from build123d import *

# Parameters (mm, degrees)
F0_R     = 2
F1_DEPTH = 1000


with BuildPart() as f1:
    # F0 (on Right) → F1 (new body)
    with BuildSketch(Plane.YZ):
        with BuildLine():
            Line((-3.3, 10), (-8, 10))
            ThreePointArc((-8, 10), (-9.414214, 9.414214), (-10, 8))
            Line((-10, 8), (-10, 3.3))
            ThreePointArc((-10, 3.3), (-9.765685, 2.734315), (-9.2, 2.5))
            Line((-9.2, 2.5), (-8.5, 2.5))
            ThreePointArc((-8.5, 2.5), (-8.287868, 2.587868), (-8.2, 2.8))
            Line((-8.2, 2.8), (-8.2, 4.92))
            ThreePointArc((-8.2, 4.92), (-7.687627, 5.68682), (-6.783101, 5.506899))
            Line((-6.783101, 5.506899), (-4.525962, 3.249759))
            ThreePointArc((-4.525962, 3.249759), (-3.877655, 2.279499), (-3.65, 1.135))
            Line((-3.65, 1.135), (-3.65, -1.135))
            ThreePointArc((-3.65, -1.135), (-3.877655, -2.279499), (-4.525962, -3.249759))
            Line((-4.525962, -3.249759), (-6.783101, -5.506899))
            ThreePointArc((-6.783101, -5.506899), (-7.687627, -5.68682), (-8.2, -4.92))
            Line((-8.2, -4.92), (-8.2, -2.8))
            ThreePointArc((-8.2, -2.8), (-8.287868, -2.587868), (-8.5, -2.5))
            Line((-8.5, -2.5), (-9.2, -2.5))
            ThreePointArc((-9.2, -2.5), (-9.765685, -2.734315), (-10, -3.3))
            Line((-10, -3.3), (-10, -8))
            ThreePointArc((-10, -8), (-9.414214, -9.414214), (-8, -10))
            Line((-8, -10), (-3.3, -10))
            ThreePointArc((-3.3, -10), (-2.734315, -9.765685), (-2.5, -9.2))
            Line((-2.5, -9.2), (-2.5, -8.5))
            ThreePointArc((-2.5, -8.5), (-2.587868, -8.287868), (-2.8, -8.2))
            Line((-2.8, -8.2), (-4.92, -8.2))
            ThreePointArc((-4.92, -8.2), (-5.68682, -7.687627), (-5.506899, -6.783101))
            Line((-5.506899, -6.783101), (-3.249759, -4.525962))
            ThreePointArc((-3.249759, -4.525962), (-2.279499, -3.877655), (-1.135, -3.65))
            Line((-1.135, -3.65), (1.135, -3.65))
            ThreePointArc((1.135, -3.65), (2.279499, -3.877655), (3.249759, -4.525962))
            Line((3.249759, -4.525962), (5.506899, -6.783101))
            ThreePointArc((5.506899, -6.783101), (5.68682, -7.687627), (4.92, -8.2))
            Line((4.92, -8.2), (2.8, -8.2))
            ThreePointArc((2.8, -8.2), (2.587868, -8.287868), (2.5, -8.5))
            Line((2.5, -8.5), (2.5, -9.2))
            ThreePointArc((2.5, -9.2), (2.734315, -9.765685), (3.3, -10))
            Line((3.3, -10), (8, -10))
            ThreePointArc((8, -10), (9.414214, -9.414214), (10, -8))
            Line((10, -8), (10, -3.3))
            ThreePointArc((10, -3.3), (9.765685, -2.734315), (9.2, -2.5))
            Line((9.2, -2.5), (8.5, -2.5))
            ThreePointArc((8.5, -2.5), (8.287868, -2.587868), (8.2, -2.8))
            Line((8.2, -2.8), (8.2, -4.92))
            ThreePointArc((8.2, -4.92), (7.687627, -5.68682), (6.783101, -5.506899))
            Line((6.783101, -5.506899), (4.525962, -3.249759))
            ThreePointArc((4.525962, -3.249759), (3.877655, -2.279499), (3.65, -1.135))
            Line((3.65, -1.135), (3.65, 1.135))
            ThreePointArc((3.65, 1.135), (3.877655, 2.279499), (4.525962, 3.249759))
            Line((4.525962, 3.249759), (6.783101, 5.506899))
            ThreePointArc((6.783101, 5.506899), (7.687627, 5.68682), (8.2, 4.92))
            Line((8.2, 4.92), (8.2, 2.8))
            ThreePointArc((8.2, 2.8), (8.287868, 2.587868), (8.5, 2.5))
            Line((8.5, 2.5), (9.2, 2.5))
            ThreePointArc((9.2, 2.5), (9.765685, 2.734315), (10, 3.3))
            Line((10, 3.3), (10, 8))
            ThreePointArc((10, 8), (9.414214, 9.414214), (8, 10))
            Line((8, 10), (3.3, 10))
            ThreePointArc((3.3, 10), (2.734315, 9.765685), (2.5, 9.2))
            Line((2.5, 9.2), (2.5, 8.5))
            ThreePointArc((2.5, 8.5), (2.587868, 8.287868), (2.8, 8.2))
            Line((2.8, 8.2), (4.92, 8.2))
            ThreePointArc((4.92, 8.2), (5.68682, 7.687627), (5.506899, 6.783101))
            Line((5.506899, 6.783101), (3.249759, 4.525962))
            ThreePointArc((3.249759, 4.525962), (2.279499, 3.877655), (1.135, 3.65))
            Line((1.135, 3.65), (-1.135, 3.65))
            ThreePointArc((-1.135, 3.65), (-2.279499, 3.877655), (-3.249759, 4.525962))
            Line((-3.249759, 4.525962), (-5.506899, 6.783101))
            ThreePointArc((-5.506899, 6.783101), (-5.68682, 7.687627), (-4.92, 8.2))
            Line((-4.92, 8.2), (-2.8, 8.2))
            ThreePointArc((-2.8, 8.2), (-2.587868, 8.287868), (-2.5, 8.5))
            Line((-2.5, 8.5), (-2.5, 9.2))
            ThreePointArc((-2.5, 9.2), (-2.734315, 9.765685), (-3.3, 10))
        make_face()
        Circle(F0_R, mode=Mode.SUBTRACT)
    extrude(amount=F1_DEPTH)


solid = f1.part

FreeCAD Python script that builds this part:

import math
import FreeCAD as App
import Part
import Sketcher
from FreeCAD import Vector
Q = App.Units.Quantity

doc = App.newDocument("Part")
body = doc.addObject("PartDesign::Body", "Body")

# Sketch on YZ plane
sketch1 = body.newObject("Sketcher::SketchObject", "Sketch")
sketch1.AttachmentSupport = (doc.getObject("YZ_Plane"), [""])
sketch1.MapMode = "FlatFace"
sketch1.addGeometry([
    Part.LineSegment(Vector(-3.3, 10, 0), Vector(-8, 10, 0)),  # 0
    Part.ArcOfCircle(Part.Circle(Vector(-8.000001, 8.000001, 0), Vector(0, 0, 1), 1.999999), math.radians(89.999957), math.radians(180.000043)),  # 1
    Part.LineSegment(Vector(-10, 8, 0), Vector(-10, 3.3, 0)),  # 2
    Part.ArcOfCircle(Part.Circle(Vector(-9.199999, 3.300001, 0), Vector(0, 0, 1), 0.800001), math.radians(-179.999896), math.radians(-90.000104)),  # 3
    Part.LineSegment(Vector(-9.2, 2.5, 0), Vector(-8.5, 2.5, 0)),  # 4
    Part.ArcOfCircle(Part.Circle(Vector(-8.5, 2.8, 0), Vector(0, 0, 1), 0.3), math.radians(-89.999978), math.radians(-0.000022)),  # 5
    Part.LineSegment(Vector(-8.2, 2.8, 0), Vector(-8.2, 4.92, 0)),  # 6
    Part.ArcOfCircle(Part.Circle(Vector(-7.37, 4.92, 0), Vector(0, 0, 1), 0.83), math.radians(45.000046), math.radians(179.999969)),  # 7
    Part.LineSegment(Vector(-6.783101, 5.506899, 0), Vector(-4.525962, 3.249759, 0)),  # 8
    Part.ArcOfCircle(Part.Circle(Vector(-6.640721, 1.135, 0), Vector(0, 0, 1), 2.990721), math.radians(0.000003), math.radians(45.000003)),  # 9
    Part.LineSegment(Vector(-3.65, 1.135, 0), Vector(-3.65, -1.135, 0)),  # 10
    Part.ArcOfCircle(Part.Circle(Vector(-6.640721, -1.135, 0), Vector(0, 0, 1), 2.990721), math.radians(-45.000003), math.radians(-0.000003)),  # 11
    Part.LineSegment(Vector(-4.525962, -3.249759, 0), Vector(-6.783101, -5.506899, 0)),  # 12
    Part.ArcOfCircle(Part.Circle(Vector(-7.37, -4.92, 0), Vector(0, 0, 1), 0.83), math.radians(-179.999969), math.radians(-45.000046)),  # 13
    Part.LineSegment(Vector(-8.2, -4.92, 0), Vector(-8.2, -2.8, 0)),  # 14
    Part.ArcOfCircle(Part.Circle(Vector(-8.5, -2.8, 0), Vector(0, 0, 1), 0.3), math.radians(0.000022), math.radians(89.999978)),  # 15
    Part.LineSegment(Vector(-8.5, -2.5, 0), Vector(-9.2, -2.5, 0)),  # 16
    Part.ArcOfCircle(Part.Circle(Vector(-9.199999, -3.300001, 0), Vector(0, 0, 1), 0.800001), math.radians(90.000104), math.radians(179.999896)),  # 17
    Part.LineSegment(Vector(-10, -3.3, 0), Vector(-10, -8, 0)),  # 18
    Part.ArcOfCircle(Part.Circle(Vector(-8.000001, -8.000001, 0), Vector(0, 0, 1), 1.999999), math.radians(179.999957), math.radians(270.000043)),  # 19
    Part.LineSegment(Vector(-8, -10, 0), Vector(-3.3, -10, 0)),  # 20
    Part.ArcOfCircle(Part.Circle(Vector(-3.300001, -9.199999, 0), Vector(0, 0, 1), 0.800001), math.radians(-89.999896), math.radians(-0.000104)),  # 21
    Part.LineSegment(Vector(-2.5, -9.2, 0), Vector(-2.5, -8.5, 0)),  # 22
    Part.ArcOfCircle(Part.Circle(Vector(-2.8, -8.5, 0), Vector(0, 0, 1), 0.3), math.radians(0.000022), math.radians(89.999978)),  # 23
    Part.LineSegment(Vector(-2.8, -8.2, 0), Vector(-4.92, -8.2, 0)),  # 24
    Part.ArcOfCircle(Part.Circle(Vector(-4.92, -7.37, 0), Vector(0, 0, 1), 0.83), math.radians(135.000046), math.radians(269.999969)),  # 25
    Part.LineSegment(Vector(-5.506899, -6.783101, 0), Vector(-3.249759, -4.525962, 0)),  # 26
    Part.ArcOfCircle(Part.Circle(Vector(-1.135, -6.640721, 0), Vector(0, 0, 1), 2.990721), math.radians(90.000003), math.radians(135.000003)),  # 27
    Part.LineSegment(Vector(-1.135, -3.65, 0), Vector(1.135, -3.65, 0)),  # 28
    Part.ArcOfCircle(Part.Circle(Vector(1.135, -6.640721, 0), Vector(0, 0, 1), 2.990721), math.radians(44.999997), math.radians(89.999997)),  # 29
    Part.LineSegment(Vector(3.249759, -4.525962, 0), Vector(5.506899, -6.783101, 0)),  # 30
    Part.ArcOfCircle(Part.Circle(Vector(4.92, -7.37, 0), Vector(0, 0, 1), 0.83), math.radians(-89.999969), math.radians(44.999954)),  # 31
    Part.LineSegment(Vector(4.92, -8.2, 0), Vector(2.8, -8.2, 0)),  # 32
    Part.ArcOfCircle(Part.Circle(Vector(2.8, -8.5, 0), Vector(0, 0, 1), 0.3), math.radians(90.000022), math.radians(179.999978)),  # 33
    Part.LineSegment(Vector(2.5, -8.5, 0), Vector(2.5, -9.2, 0)),  # 34
    Part.ArcOfCircle(Part.Circle(Vector(3.300001, -9.199999, 0), Vector(0, 0, 1), 0.800001), math.radians(-179.999896), math.radians(-90.000104)),  # 35
    Part.LineSegment(Vector(3.3, -10, 0), Vector(8, -10, 0)),  # 36
    Part.ArcOfCircle(Part.Circle(Vector(8.000001, -8.000001, 0), Vector(0, 0, 1), 1.999999), math.radians(-90.000043), math.radians(0.000043)),  # 37
    Part.LineSegment(Vector(10, -8, 0), Vector(10, -3.3, 0)),  # 38
    Part.ArcOfCircle(Part.Circle(Vector(9.199999, -3.300001, 0), Vector(0, 0, 1), 0.800001), math.radians(0.000104), math.radians(89.999896)),  # 39
    Part.LineSegment(Vector(9.2, -2.5, 0), Vector(8.5, -2.5, 0)),  # 40
    Part.ArcOfCircle(Part.Circle(Vector(8.5, -2.8, 0), Vector(0, 0, 1), 0.3), math.radians(90.000022), math.radians(179.999978)),  # 41
    Part.LineSegment(Vector(8.2, -2.8, 0), Vector(8.2, -4.92, 0)),  # 42
    Part.ArcOfCircle(Part.Circle(Vector(7.37, -4.92, 0), Vector(0, 0, 1), 0.83), math.radians(-134.999954), math.radians(-0.000031)),  # 43
    Part.LineSegment(Vector(6.783101, -5.506899, 0), Vector(4.525962, -3.249759, 0)),  # 44
    Part.ArcOfCircle(Part.Circle(Vector(6.640721, -1.135, 0), Vector(0, 0, 1), 2.990721), math.radians(-179.999997), math.radians(-134.999997)),  # 45
    Part.LineSegment(Vector(3.65, -1.135, 0), Vector(3.65, 1.135, 0)),  # 46
    Part.ArcOfCircle(Part.Circle(Vector(6.640721, 1.135, 0), Vector(0, 0, 1), 2.990721), math.radians(134.999997), math.radians(179.999997)),  # 47
    Part.LineSegment(Vector(4.525962, 3.249759, 0), Vector(6.783101, 5.506899, 0)),  # 48
    Part.ArcOfCircle(Part.Circle(Vector(7.37, 4.92, 0), Vector(0, 0, 1), 0.83), math.radians(0.000031), math.radians(134.999954)),  # 49
    Part.LineSegment(Vector(8.2, 4.92, 0), Vector(8.2, 2.8, 0)),  # 50
    Part.ArcOfCircle(Part.Circle(Vector(8.5, 2.8, 0), Vector(0, 0, 1), 0.3), math.radians(-179.999978), math.radians(-90.000022)),  # 51
    Part.LineSegment(Vector(8.5, 2.5, 0), Vector(9.2, 2.5, 0)),  # 52
    Part.ArcOfCircle(Part.Circle(Vector(9.199999, 3.300001, 0), Vector(0, 0, 1), 0.800001), math.radians(-89.999896), math.radians(-0.000104)),  # 53
    Part.LineSegment(Vector(10, 3.3, 0), Vector(10, 8, 0)),  # 54
    Part.ArcOfCircle(Part.Circle(Vector(8.000001, 8.000001, 0), Vector(0, 0, 1), 1.999999), math.radians(-0.000043), math.radians(90.000043)),  # 55
    Part.LineSegment(Vector(8, 10, 0), Vector(3.3, 10, 0)),  # 56
    Part.ArcOfCircle(Part.Circle(Vector(3.300001, 9.199999, 0), Vector(0, 0, 1), 0.800001), math.radians(90.000104), math.radians(179.999896)),  # 57
    Part.LineSegment(Vector(2.5, 9.2, 0), Vector(2.5, 8.5, 0)),  # 58
    Part.ArcOfCircle(Part.Circle(Vector(2.8, 8.5, 0), Vector(0, 0, 1), 0.3), math.radians(-179.999978), math.radians(-90.000022)),  # 59
    Part.LineSegment(Vector(2.8, 8.2, 0), Vector(4.92, 8.2, 0)),  # 60
    Part.ArcOfCircle(Part.Circle(Vector(4.92, 7.37, 0), Vector(0, 0, 1), 0.83), math.radians(-44.999954), math.radians(89.999969)),  # 61
    Part.LineSegment(Vector(5.506899, 6.783101, 0), Vector(3.249759, 4.525962, 0)),  # 62
    Part.ArcOfCircle(Part.Circle(Vector(1.135, 6.640721, 0), Vector(0, 0, 1), 2.990721), math.radians(-89.999997), math.radians(-44.999997)),  # 63
    Part.LineSegment(Vector(1.135, 3.65, 0), Vector(-1.135, 3.65, 0)),  # 64
    Part.ArcOfCircle(Part.Circle(Vector(-1.135, 6.640721, 0), Vector(0, 0, 1), 2.990721), math.radians(-135.000003), math.radians(-90.000003)),  # 65
    Part.LineSegment(Vector(-3.249759, 4.525962, 0), Vector(-5.506899, 6.783101, 0)),  # 66
    Part.ArcOfCircle(Part.Circle(Vector(-4.92, 7.37, 0), Vector(0, 0, 1), 0.83), math.radians(90.000031), math.radians(224.999954)),  # 67
    Part.LineSegment(Vector(-4.92, 8.2, 0), Vector(-2.8, 8.2, 0)),  # 68
    Part.ArcOfCircle(Part.Circle(Vector(-2.8, 8.5, 0), Vector(0, 0, 1), 0.3), math.radians(-89.999978), math.radians(-0.000022)),  # 69
    Part.LineSegment(Vector(-2.5, 8.5, 0), Vector(-2.5, 9.2, 0)),  # 70
    Part.ArcOfCircle(Part.Circle(Vector(-3.300001, 9.199999, 0), Vector(0, 0, 1), 0.800001), math.radians(0.000104), math.radians(89.999896)),  # 71
    Part.Circle(Vector(0, 0, 0), Vector(0, 0, 1), 2),  # 72
], False)
sketch1.addConstraint([
    Sketcher.Constraint("Tangent", 0, 2, 1, 1),
    Sketcher.Constraint("Tangent", 1, 2, 2, 1),
    Sketcher.Constraint("Tangent", 2, 2, 3, 1),
    Sketcher.Constraint("Tangent", 3, 2, 4, 1),
    Sketcher.Constraint("Tangent", 4, 2, 5, 1),
    Sketcher.Constraint("Tangent", 5, 2, 6, 1),
    Sketcher.Constraint("Tangent", 6, 2, 7, 2),
    Sketcher.Constraint("Tangent", 7, 1, 8, 1),
    Sketcher.Constraint("Tangent", 8, 2, 9, 2),
    Sketcher.Constraint("Tangent", 9, 1, 10, 1),
    Sketcher.Constraint("Tangent", 10, 2, 11, 2),
    Sketcher.Constraint("Tangent", 11, 1, 12, 1),
    Sketcher.Constraint("Tangent", 12, 2, 13, 2),
    Sketcher.Constraint("Tangent", 13, 1, 14, 1),
    Sketcher.Constraint("Tangent", 14, 2, 15, 1),
    Sketcher.Constraint("Tangent", 15, 2, 16, 1),
    Sketcher.Constraint("Tangent", 16, 2, 17, 1),
    Sketcher.Constraint("Tangent", 17, 2, 18, 1),
    Sketcher.Constraint("Tangent", 18, 2, 19, 1),
    Sketcher.Constraint("Tangent", 19, 2, 20, 1),
    Sketcher.Constraint("Tangent", 20, 2, 21, 1),
    Sketcher.Constraint("Tangent", 21, 2, 22, 1),
    Sketcher.Constraint("Tangent", 22, 2, 23, 1),
    Sketcher.Constraint("Tangent", 23, 2, 24, 1),
    Sketcher.Constraint("Tangent", 24, 2, 25, 2),
    Sketcher.Constraint("Tangent", 25, 1, 26, 1),
    Sketcher.Constraint("Tangent", 26, 2, 27, 2),
    Sketcher.Constraint("Tangent", 27, 1, 28, 1),
    Sketcher.Constraint("Tangent", 28, 2, 29, 2),
    Sketcher.Constraint("Tangent", 29, 1, 30, 1),
    Sketcher.Constraint("Tangent", 30, 2, 31, 2),
    Sketcher.Constraint("Tangent", 31, 1, 32, 1),
    Sketcher.Constraint("Tangent", 32, 2, 33, 1),
    Sketcher.Constraint("Tangent", 33, 2, 34, 1),
    Sketcher.Constraint("Tangent", 34, 2, 35, 1),
    Sketcher.Constraint("Tangent", 35, 2, 36, 1),
    Sketcher.Constraint("Tangent", 36, 2, 37, 1),
    Sketcher.Constraint("Tangent", 37, 2, 38, 1),
    Sketcher.Constraint("Tangent", 38, 2, 39, 1),
    Sketcher.Constraint("Tangent", 39, 2, 40, 1),
    Sketcher.Constraint("Tangent", 40, 2, 41, 1),
    Sketcher.Constraint("Tangent", 41, 2, 42, 1),
    Sketcher.Constraint("Tangent", 42, 2, 43, 2),
    Sketcher.Constraint("Tangent", 43, 1, 44, 1),
    Sketcher.Constraint("Tangent", 44, 2, 45, 2),
    Sketcher.Constraint("Tangent", 45, 1, 46, 1),
    Sketcher.Constraint("Tangent", 46, 2, 47, 2),
    Sketcher.Constraint("Tangent", 47, 1, 48, 1),
    Sketcher.Constraint("Tangent", 48, 2, 49, 2),
    Sketcher.Constraint("Tangent", 49, 1, 50, 1),
    Sketcher.Constraint("Tangent", 50, 2, 51, 1),
    Sketcher.Constraint("Tangent", 51, 2, 52, 1),
    Sketcher.Constraint("Tangent", 52, 2, 53, 1),
    Sketcher.Constraint("Tangent", 53, 2, 54, 1),
    Sketcher.Constraint("Tangent", 54, 2, 55, 1),
    Sketcher.Constraint("Tangent", 55, 2, 56, 1),
    Sketcher.Constraint("Tangent", 56, 2, 57, 1),
    Sketcher.Constraint("Tangent", 57, 2, 58, 1),
    Sketcher.Constraint("Tangent", 58, 2, 59, 1),
    Sketcher.Constraint("Tangent", 59, 2, 60, 1),
    Sketcher.Constraint("Tangent", 60, 2, 61, 2),
    Sketcher.Constraint("Tangent", 61, 1, 62, 1),
    Sketcher.Constraint("Tangent", 62, 2, 63, 2),
    Sketcher.Constraint("Tangent", 63, 1, 64, 1),
    Sketcher.Constraint("Tangent", 64, 2, 65, 2),
    Sketcher.Constraint("Tangent", 65, 1, 66, 1),
    Sketcher.Constraint("Tangent", 66, 2, 67, 2),
    Sketcher.Constraint("Tangent", 67, 1, 68, 1),
    Sketcher.Constraint("Tangent", 68, 2, 69, 1),
    Sketcher.Constraint("Tangent", 69, 2, 70, 1),
    Sketcher.Constraint("Tangent", 70, 2, 71, 1),
    Sketcher.Constraint("Tangent", 71, 2, 0, 1),
    Sketcher.Constraint("Horizontal", 0),
    Sketcher.Constraint("Vertical", 2),
    Sketcher.Constraint("Horizontal", 4),
    Sketcher.Constraint("Vertical", 6),
    Sketcher.Constraint("Vertical", 10),
    Sketcher.Constraint("Vertical", 14),
    Sketcher.Constraint("Horizontal", 16),
    Sketcher.Constraint("Vertical", 18),
    Sketcher.Constraint("Horizontal", 20),
    Sketcher.Constraint("Vertical", 22),
    Sketcher.Constraint("Horizontal", 24),
    Sketcher.Constraint("Horizontal", 28),
    Sketcher.Constraint("Horizontal", 32),
    Sketcher.Constraint("Vertical", 34),
    Sketcher.Constraint("Horizontal", 36),
    Sketcher.Constraint("Vertical", 38),
    Sketcher.Constraint("Horizontal", 40),
    Sketcher.Constraint("Vertical", 42),
    Sketcher.Constraint("Vertical", 46),
    Sketcher.Constraint("Vertical", 50),
    Sketcher.Constraint("Horizontal", 52),
    Sketcher.Constraint("Vertical", 54),
    Sketcher.Constraint("Horizontal", 56),
    Sketcher.Constraint("Vertical", 58),
    Sketcher.Constraint("Horizontal", 60),
    Sketcher.Constraint("Horizontal", 64),
    Sketcher.Constraint("Horizontal", 68),
    Sketcher.Constraint("Vertical", 70),
    Sketcher.Constraint("Coincident", 72, 3, -1, 1),
    Sketcher.Constraint("Equal", 9, 11),
    Sketcher.Constraint("Equal", 7, 13),
    Sketcher.Constraint("Equal", 5, 15),
    Sketcher.Constraint("Equal", 3, 17),
    Sketcher.Constraint("Equal", 1, 19),
    Sketcher.Constraint("Equal", 17, 21),
    Sketcher.Constraint("Equal", 15, 23),
    Sketcher.Constraint("Equal", 13, 25),
    Sketcher.Constraint("Equal", 11, 27),
    Sketcher.Constraint("Equal", 27, 29),
    Sketcher.Constraint("Equal", 25, 31),
    Sketcher.Constraint("Equal", 23, 33),
    Sketcher.Constraint("Equal", 21, 35),
    Sketcher.Constraint("Equal", 19, 37),
    Sketcher.Constraint("Equal", 35, 39),
    Sketcher.Constraint("Equal", 33, 41),
    Sketcher.Constraint("Equal", 31, 43),
    Sketcher.Constraint("Equal", 29, 45),
    Sketcher.Constraint("Equal", 45, 47),
    Sketcher.Constraint("Equal", 43, 49),
    Sketcher.Constraint("Equal", 41, 51),
    Sketcher.Constraint("Equal", 39, 53),
    Sketcher.Constraint("Equal", 37, 55),
    Sketcher.Constraint("Equal", 53, 57),
    Sketcher.Constraint("Equal", 51, 59),
    Sketcher.Constraint("Equal", 49, 61),
    Sketcher.Constraint("Equal", 47, 63),
    Sketcher.Constraint("Equal", 63, 65),
    Sketcher.Constraint("Equal", 61, 67),
    Sketcher.Constraint("Equal", 59, 69),
    Sketcher.Constraint("Equal", 57, 71),
    Sketcher.Constraint("Equal", 55, 72),
    Sketcher.Constraint("Symmetric", 1, 3, 37, 3, -1, 1),
    Sketcher.Constraint("Symmetric", 5, 3, 41, 3, -1, 1),
    Sketcher.Constraint("Symmetric", 9, 3, 45, 3, -1, 1),
    Sketcher.Constraint("Symmetric", 13, 3, 49, 3, -1, 1),
    Sketcher.Constraint("Symmetric", 17, 3, 53, 3, -1, 1),
    Sketcher.Constraint("Symmetric", 21, 3, 57, 3, -1, 1),
    Sketcher.Constraint("Symmetric", 25, 3, 61, 3, -1, 1),
    Sketcher.Constraint("Symmetric", 27, 3, 63, 3, -1, 1),
    Sketcher.Constraint("Symmetric", 31, 3, 67, 3, -1, 1),
    Sketcher.Constraint("Symmetric", 25, 3, 31, 3, -2),
    Sketcher.Constraint("Symmetric", 21, 3, 35, 3, -2),
    Sketcher.Constraint("Symmetric", 17, 3, 39, 3, -2),
    Sketcher.Constraint("Symmetric", 13, 3, 43, 3, -2),
    Sketcher.Constraint("Symmetric", 8, 2, 47, 1, -2),
    Sketcher.Constraint("Perpendicular", 8, 12),
    Sketcher.Constraint("Parallel", 12, 26),
    Sketcher.Constraint("Perpendicular", 26, 30),
    Sketcher.Constraint("Perpendicular", 44, 48),
    Sketcher.Constraint("Perpendicular", 62, 66),
    Sketcher.Constraint("Vertical", 23, 3, 69, 3),
    Sketcher.Constraint("Equal", 56, 2),
    Sketcher.Constraint("Equal", 68, 6),
    Sketcher.Constraint("Equal", 64, 10),
    Sketcher.Constraint("Equal", 52, 22),
    Sketcher.Constraint("Equal", 12, 26),
    Sketcher.Constraint("Diameter", 72, Q("4 mm")),
    Sketcher.Constraint("Radius", 3, Q("0.800001 mm")),
    Sketcher.Constraint("Radius", 5, Q("0.3 mm")),
    Sketcher.Constraint("Radius", 7, Q("0.83 mm")),
    Sketcher.Constraint("DistanceX", 0, 2, 0, 1, Q("4.7 mm")),
    Sketcher.Constraint("DistanceX", 4, 1, 4, 2, Q("0.7 mm")),
    Sketcher.Constraint("DistanceX", 1, 3, -1, 1, Q("8.000001 mm")),
    Sketcher.Constraint("DistanceX", 24, 2, 24, 1, Q("2.12 mm")),
    Sketcher.Constraint("DistanceX", 28, 1, 28, 2, Q("2.27 mm")),
    Sketcher.Constraint("DistanceX", 9, 1, -1, 1, Q("3.65 mm")),
])
pad1 = body.newObject("PartDesign::Pad", "Pad")
pad1.Profile = sketch1
pad1.Length = 1000

doc.recompute()
